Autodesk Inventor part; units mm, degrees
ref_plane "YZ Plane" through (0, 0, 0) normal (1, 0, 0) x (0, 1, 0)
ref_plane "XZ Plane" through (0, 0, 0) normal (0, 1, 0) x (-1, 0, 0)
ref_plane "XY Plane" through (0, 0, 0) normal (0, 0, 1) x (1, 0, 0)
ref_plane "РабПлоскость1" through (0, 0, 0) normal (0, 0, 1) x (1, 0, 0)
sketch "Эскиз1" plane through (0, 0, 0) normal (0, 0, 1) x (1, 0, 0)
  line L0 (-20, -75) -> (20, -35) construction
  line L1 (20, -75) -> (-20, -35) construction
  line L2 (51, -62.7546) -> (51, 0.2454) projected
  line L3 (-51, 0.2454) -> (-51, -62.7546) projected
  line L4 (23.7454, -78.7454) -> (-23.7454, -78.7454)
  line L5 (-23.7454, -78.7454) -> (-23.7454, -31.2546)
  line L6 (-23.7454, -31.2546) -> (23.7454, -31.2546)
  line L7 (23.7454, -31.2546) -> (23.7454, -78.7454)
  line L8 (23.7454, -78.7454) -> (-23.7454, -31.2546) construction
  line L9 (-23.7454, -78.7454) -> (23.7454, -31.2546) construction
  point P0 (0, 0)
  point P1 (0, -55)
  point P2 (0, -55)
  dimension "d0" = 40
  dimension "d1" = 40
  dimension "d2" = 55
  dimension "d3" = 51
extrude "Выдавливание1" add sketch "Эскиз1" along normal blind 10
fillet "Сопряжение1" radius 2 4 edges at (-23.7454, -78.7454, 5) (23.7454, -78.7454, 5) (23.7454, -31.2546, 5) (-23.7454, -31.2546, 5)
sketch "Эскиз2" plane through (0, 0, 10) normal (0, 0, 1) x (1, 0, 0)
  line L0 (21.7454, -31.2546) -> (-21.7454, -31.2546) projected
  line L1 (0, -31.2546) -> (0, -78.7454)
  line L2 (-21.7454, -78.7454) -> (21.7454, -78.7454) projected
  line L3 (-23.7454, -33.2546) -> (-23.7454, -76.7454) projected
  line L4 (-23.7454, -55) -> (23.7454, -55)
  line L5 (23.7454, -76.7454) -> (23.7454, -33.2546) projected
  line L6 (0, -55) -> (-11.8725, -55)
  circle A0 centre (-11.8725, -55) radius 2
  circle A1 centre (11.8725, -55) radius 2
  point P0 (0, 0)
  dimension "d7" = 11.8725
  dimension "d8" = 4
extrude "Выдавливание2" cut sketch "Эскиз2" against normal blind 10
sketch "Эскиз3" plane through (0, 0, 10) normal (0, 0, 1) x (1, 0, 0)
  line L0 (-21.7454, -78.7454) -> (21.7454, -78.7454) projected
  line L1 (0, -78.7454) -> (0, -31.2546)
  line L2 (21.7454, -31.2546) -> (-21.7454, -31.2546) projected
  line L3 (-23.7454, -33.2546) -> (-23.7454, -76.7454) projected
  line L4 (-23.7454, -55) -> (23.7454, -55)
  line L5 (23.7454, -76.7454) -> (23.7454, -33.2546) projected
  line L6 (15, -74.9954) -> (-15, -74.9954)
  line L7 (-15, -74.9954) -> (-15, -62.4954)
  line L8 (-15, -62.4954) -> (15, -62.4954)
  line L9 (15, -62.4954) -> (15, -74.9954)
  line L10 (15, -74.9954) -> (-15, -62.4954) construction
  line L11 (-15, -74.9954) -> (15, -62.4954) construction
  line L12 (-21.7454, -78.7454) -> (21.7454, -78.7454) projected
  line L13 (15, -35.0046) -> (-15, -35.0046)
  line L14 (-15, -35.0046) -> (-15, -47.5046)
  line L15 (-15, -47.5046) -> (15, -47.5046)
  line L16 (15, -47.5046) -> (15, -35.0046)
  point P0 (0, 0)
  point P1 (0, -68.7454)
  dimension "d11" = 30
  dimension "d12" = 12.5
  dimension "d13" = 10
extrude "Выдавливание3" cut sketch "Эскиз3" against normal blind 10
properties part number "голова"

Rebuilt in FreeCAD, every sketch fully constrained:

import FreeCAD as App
import Part
import Sketcher
from FreeCAD import Vector


def edges_at(feature, points):
    """Names of the edges that pass closest to the given points."""
    edges = feature.Shape.Edges
    near = lambda p: min(range(len(edges)), key=lambda i: edges[i].distToShape(Part.Vertex(*p))[0])
    return sorted({f"Edge{near(p) + 1}" for p in points})


def add_polygon(sketch, points):
    """Adds a closed chain of lines whose ends are joined by coincident constraints."""
    first, n = sketch.GeometryCount, len(points)
    for a, b in zip(points, points[1:] + points[:1]):
        sketch.addGeometry(Part.LineSegment(App.Vector(*a, 0), App.Vector(*b, 0)), False)
    for i in range(n):
        sketch.addConstraint(Sketcher.Constraint("Coincident", first + i, 2, first + (i + 1) % n, 1))

doc = App.newDocument("Part")
body = doc.addObject("PartDesign::Body", "Body")

sketch1 = body.newObject("Sketcher::SketchObject", "Sketch")
sketch1.AttachmentSupport = (doc.getObject("XY_Plane"), [""])
sketch1.MapMode = "FlatFace"
add_polygon(sketch1, [(-24, -79), (24, -79), (24, -31), (-24, -31)])
sketch1.addConstraint([
    Sketcher.Constraint("Horizontal", 0),
    Sketcher.Constraint("Vertical", 1),
    Sketcher.Constraint("Horizontal", 2),
    Sketcher.Constraint("Vertical", 3),
    Sketcher.Constraint("Equal", 2, 1),
    Sketcher.Constraint("DistanceX", 0, 1, 0, 2, 47.4908),
    Sketcher.Constraint("DistanceX", -1, 1, 0, 2, 23.7454),
    Sketcher.Constraint("DistanceY", 0, 2, -1, 1, 78.7454),
])
pad1 = body.newObject("PartDesign::Pad", "Pad")
pad1.Profile = sketch1
pad1.Length = 10
doc.recompute()

fillet = body.newObject("PartDesign::Fillet", "Fillet")
fillet.Base = (pad1, edges_at(pad1, [
    (-23.745, -78.745, 5),
    (23.745, -78.745, 5),
    (23.745, -31.255, 5),
    (-23.745, -31.255, 5),
]))
fillet.Radius = 2

sketch2 = body.newObject("Sketcher::SketchObject", "Sketch001")
sketch2.AttachmentSupport = (doc.getObject("XY_Plane"), [""])
sketch2.MapMode = "FlatFace"
sketch2.AttachmentOffset = App.Placement(Vector(0, 0, 10), App.Rotation())
sketch2.addGeometry([
    Part.Circle(Vector(-11.9, -55, 0), Vector(0, 0, 1), 2),
    Part.Circle(Vector(11.9, -55, 0), Vector(0, 0, 1), 2),
], False)
sketch2.addConstraint([
    Sketcher.Constraint("Equal", 0, 1),
    Sketcher.Constraint("Symmetric", 0, 3, 1, 3, -2),
    Sketcher.Constraint("Diameter", 0, 4.0),
    Sketcher.Constraint("DistanceY", 0, 3, -1, 1, 55.0),
    Sketcher.Constraint("DistanceX", 0, 3, -1, 1, 11.8725),
])
pocket1 = body.newObject("PartDesign::Pocket", "Pocket")
pocket1.Profile = sketch2
pocket1.Length = 10

sketch3 = body.newObject("Sketcher::SketchObject", "Sketch002")
sketch3.AttachmentSupport = (doc.getObject("XY_Plane"), [""])
sketch3.MapMode = "FlatFace"
sketch3.AttachmentOffset = App.Placement(Vector(0, 0, 10), App.Rotation())
add_polygon(sketch3, [(-15, -75), (15, -75), (15, -62), (-15, -62)])
add_polygon(sketch3, [(-15, -48), (15, -48), (15, -35), (-15, -35)])
sketch3.addConstraint([
    Sketcher.Constraint("Horizontal", 0),
    Sketcher.Constraint("Vertical", 1),
    Sketcher.Constraint("Horizontal", 2),
    Sketcher.Constraint("Vertical", 3),
    Sketcher.Constraint("Horizontal", 4),
    Sketcher.Constraint("Vertical", 5),
    Sketcher.Constraint("Horizontal", 6),
    Sketcher.Constraint("Vertical", 7),
    Sketcher.Constraint("Vertical", 1, 2, 4, 2),
    Sketcher.Constraint("Vertical", 3, 2, 6, 2),
    Sketcher.Constraint("Equal", 3, 5),
    Sketcher.Constraint("DistanceX", 0, 1, 0, 2, 30.0),
    Sketcher.Constraint("DistanceY", 1, 1, 1, 2, 12.5),
    Sketcher.Constraint("DistanceX", -1, 1, 0, 2, 15.0),
    Sketcher.Constraint("DistanceY", 0, 2, -1, 1, 74.9954),
    Sketcher.Constraint("DistanceY", 4, 2, -1, 1, 47.5046),
])
pocket2 = body.newObject("PartDesign::Pocket", "Pocket001")
pocket2.Profile = sketch3
pocket2.Length = 10

doc.recompute()
